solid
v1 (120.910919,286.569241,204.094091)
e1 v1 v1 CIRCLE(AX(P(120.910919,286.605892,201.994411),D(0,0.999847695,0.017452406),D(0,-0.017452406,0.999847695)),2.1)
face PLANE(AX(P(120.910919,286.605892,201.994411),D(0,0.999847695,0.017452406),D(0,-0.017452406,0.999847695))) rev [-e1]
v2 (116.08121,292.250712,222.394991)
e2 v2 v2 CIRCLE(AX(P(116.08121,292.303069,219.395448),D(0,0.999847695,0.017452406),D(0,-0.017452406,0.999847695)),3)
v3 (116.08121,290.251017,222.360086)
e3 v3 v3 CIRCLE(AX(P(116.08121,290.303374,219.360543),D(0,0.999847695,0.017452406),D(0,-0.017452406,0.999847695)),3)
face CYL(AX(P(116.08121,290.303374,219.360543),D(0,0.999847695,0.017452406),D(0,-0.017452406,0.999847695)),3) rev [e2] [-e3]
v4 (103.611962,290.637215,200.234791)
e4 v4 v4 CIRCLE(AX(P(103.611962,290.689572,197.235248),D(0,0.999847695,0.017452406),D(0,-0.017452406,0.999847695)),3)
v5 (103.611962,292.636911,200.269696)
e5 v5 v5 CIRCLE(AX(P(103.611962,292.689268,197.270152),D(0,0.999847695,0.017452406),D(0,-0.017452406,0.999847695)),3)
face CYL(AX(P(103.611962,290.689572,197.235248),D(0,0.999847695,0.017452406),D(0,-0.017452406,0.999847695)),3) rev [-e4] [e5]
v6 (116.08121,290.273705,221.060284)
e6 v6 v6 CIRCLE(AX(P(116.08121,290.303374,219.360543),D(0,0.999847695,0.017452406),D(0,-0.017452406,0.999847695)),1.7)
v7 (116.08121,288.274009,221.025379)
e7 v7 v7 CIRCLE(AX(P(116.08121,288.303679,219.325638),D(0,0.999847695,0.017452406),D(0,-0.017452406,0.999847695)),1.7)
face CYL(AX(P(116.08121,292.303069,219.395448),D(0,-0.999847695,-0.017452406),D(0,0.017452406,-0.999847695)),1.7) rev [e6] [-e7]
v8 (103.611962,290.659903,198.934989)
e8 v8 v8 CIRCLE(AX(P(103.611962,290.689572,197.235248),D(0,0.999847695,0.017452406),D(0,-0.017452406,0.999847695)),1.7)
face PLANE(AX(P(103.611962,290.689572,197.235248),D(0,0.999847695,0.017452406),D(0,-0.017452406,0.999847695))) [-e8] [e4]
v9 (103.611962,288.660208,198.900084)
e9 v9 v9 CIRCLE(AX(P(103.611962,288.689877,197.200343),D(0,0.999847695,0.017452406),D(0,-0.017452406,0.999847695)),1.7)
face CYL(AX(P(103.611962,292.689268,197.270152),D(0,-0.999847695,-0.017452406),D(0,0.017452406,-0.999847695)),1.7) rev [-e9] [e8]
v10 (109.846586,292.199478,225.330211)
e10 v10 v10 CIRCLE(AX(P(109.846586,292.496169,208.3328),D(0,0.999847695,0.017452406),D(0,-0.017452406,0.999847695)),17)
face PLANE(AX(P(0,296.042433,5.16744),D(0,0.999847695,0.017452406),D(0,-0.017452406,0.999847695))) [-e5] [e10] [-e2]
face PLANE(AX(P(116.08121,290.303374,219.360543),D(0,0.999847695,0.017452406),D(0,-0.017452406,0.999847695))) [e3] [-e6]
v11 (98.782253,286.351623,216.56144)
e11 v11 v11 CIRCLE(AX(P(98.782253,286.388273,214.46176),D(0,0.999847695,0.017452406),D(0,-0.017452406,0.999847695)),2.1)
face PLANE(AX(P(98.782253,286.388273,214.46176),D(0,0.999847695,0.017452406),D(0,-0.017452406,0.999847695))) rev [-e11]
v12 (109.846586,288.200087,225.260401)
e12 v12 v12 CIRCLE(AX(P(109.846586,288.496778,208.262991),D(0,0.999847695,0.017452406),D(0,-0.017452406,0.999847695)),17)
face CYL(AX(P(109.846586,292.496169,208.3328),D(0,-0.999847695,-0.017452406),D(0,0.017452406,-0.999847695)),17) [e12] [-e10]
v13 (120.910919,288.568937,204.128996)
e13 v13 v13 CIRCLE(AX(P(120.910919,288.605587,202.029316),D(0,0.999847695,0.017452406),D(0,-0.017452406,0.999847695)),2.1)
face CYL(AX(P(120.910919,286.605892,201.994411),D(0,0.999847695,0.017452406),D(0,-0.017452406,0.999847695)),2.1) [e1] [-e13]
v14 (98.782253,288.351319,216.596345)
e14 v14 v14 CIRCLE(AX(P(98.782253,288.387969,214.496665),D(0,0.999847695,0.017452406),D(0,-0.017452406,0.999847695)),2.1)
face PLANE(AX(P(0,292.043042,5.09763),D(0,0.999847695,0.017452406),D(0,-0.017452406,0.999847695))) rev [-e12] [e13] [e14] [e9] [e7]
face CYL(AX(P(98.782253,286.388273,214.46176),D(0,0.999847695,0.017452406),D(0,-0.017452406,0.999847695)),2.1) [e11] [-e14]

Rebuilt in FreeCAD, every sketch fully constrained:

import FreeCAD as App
import Part
import Sketcher

V = App.Vector
Q = App.Units.Quantity

doc = App.newDocument("Part")
body = doc.addObject("PartDesign::Body", "Body")

sketch1 = body.newObject("Sketcher::SketchObject", "Sketch")
sketch1.Placement = App.Placement(V(0, 292.043042, 5.09763), App.Rotation(V(1, 0, 0), V(0, 0.017452406, -0.999847695), V(0, 0.999847695, 0.017452406), "ZXY"))
sketch1.addGeometry([
    Part.Circle(V(109.8, -203.2, 0), V(0, 0, 1), 17),
    Part.Circle(V(103.6, -192.1, 0), V(0, 0, 1), 1.7),
    Part.Circle(V(98.8, -209.4, 0), V(0, 0, 1), 2.1),
    Part.Circle(V(120.9, -197, 0), V(0, 0, 1), 2.1),
    Part.Circle(V(116.1, -214.3, 0), V(0, 0, 1), 1.7),
], False)
sketch1.addConstraint([
    Sketcher.Constraint("Equal", 2, 3),
    Sketcher.Constraint("Equal", 1, 4),
    Sketcher.Constraint("Diameter", 0, Q("34 mm")),
    Sketcher.Constraint("Diameter", 1, Q("3.4 mm")),
    Sketcher.Constraint("Diameter", 2, Q("4.2 mm")),
    Sketcher.Constraint("DistanceY", 0, 3, -1, 1, Q("203.196308 mm")),
    Sketcher.Constraint("DistanceX", -1, 1, 1, 3, Q("103.611962 mm")),
    Sketcher.Constraint("DistanceX", -1, 1, 3, 3, Q("120.910919 mm")),
    Sketcher.Constraint("DistanceX", -1, 1, 4, 3, Q("116.08121 mm")),
    Sketcher.Constraint("DistanceY", 4, 3, -1, 1, Q("214.260641 mm")),
    Sketcher.Constraint("DistanceX", 2, 3, 1, 3, Q("4.829709 mm")),
    Sketcher.Constraint("DistanceY", 3, 3, 1, 3, Q("4.829709 mm")),
    Sketcher.Constraint("DistanceY", 2, 3, 3, 3, Q("12.469248 mm")),
    Sketcher.Constraint("DistanceY", 4, 3, 2, 3, Q("4.829709 mm")),
    Sketcher.Constraint("DistanceX", -1, 1, 0, 3, Q("109.846586 mm")),
])
pad1 = body.newObject("PartDesign::Pad", "Pad")
pad1.Profile = sketch1
pad1.Length = 4

sketch2 = body.newObject("Sketcher::SketchObject", "Sketch001")
sketch2.Placement = App.Placement(V(0, 290.043347, 5.062725), App.Rotation(V(1, 0, 0), V(0, 0.017452406, -0.999847695), V(0, 0.999847695, 0.017452406), "ZXY"))
sketch2.addGeometry([
    Part.Circle(V(98.8, -209.4, 0), V(0, 0, 1), 2.1),
    Part.Circle(V(120.9, -197, 0), V(0, 0, 1), 2.1),
], False)
sketch2.addConstraint([
    Sketcher.Constraint("Equal", 0, 1),
    Sketcher.Constraint("Diameter", 0, Q("4.2 mm")),
    Sketcher.Constraint("DistanceX", -1, 1, 1, 3, Q("120.910919 mm")),
    Sketcher.Constraint("DistanceY", 0, 3, 1, 3, Q("12.469248 mm")),
    Sketcher.Constraint("DistanceX", -1, 1, 0, 3, Q("98.782253 mm")),
    Sketcher.Constraint("DistanceY", 0, 3, -1, 1, Q("209.430932 mm")),
])
pad2 = body.newObject("PartDesign::Pad", "Pad001")
pad2.Profile = sketch2
pad2.Length = 6

sketch3 = body.newObject("Sketcher::SketchObject", "Sketch002")
sketch3.Placement = App.Placement(V(0, 294.042738, 5.132535), App.Rotation(V(1, 0, 0), V(0, 0.017452406, -0.999847695), V(0, 0.999847695, 0.017452406), "ZXY"))
sketch3.addGeometry([
    Part.Circle(V(103.6, -192.1, 0), V(0, 0, 1), 3),
    Part.Circle(V(103.6, -192.1, 0), V(0, 0, 1), 1.7),
    Part.Circle(V(116.1, -214.3, 0), V(0, 0, 1), 3),
    Part.Circle(V(116.1, -214.3, 0), V(0, 0, 1), 1.7),
], False)
sketch3.addConstraint([
    Sketcher.Constraint("Coincident", 1, 3, 0, 3),
    Sketcher.Constraint("Coincident", 3, 3, 2, 3),
    Sketcher.Constraint("Equal", 0, 2),
    Sketcher.Constraint("Equal", 1, 3),
    Sketcher.Constraint("Diameter", 0, Q("6 mm")),
    Sketcher.Constraint("Diameter", 1, Q("3.4 mm")),
    Sketcher.Constraint("DistanceX", -1, 1, 0, 3, Q("103.611962 mm")),
    Sketcher.Constraint("DistanceX", -1, 1, 2, 3, Q("116.08121 mm")),
    Sketcher.Constraint("DistanceY", 2, 3, -1, 1, Q("214.260641 mm")),
    Sketcher.Constraint("DistanceY", 0, 3, -1, 1, Q("192.131975 mm")),
])
pocket1 = body.newObject("PartDesign::Pocket", "Pocket")
pocket1.Profile = sketch3
pocket1.Length = 2
pocket1.Reversed = True

doc.recompute()
